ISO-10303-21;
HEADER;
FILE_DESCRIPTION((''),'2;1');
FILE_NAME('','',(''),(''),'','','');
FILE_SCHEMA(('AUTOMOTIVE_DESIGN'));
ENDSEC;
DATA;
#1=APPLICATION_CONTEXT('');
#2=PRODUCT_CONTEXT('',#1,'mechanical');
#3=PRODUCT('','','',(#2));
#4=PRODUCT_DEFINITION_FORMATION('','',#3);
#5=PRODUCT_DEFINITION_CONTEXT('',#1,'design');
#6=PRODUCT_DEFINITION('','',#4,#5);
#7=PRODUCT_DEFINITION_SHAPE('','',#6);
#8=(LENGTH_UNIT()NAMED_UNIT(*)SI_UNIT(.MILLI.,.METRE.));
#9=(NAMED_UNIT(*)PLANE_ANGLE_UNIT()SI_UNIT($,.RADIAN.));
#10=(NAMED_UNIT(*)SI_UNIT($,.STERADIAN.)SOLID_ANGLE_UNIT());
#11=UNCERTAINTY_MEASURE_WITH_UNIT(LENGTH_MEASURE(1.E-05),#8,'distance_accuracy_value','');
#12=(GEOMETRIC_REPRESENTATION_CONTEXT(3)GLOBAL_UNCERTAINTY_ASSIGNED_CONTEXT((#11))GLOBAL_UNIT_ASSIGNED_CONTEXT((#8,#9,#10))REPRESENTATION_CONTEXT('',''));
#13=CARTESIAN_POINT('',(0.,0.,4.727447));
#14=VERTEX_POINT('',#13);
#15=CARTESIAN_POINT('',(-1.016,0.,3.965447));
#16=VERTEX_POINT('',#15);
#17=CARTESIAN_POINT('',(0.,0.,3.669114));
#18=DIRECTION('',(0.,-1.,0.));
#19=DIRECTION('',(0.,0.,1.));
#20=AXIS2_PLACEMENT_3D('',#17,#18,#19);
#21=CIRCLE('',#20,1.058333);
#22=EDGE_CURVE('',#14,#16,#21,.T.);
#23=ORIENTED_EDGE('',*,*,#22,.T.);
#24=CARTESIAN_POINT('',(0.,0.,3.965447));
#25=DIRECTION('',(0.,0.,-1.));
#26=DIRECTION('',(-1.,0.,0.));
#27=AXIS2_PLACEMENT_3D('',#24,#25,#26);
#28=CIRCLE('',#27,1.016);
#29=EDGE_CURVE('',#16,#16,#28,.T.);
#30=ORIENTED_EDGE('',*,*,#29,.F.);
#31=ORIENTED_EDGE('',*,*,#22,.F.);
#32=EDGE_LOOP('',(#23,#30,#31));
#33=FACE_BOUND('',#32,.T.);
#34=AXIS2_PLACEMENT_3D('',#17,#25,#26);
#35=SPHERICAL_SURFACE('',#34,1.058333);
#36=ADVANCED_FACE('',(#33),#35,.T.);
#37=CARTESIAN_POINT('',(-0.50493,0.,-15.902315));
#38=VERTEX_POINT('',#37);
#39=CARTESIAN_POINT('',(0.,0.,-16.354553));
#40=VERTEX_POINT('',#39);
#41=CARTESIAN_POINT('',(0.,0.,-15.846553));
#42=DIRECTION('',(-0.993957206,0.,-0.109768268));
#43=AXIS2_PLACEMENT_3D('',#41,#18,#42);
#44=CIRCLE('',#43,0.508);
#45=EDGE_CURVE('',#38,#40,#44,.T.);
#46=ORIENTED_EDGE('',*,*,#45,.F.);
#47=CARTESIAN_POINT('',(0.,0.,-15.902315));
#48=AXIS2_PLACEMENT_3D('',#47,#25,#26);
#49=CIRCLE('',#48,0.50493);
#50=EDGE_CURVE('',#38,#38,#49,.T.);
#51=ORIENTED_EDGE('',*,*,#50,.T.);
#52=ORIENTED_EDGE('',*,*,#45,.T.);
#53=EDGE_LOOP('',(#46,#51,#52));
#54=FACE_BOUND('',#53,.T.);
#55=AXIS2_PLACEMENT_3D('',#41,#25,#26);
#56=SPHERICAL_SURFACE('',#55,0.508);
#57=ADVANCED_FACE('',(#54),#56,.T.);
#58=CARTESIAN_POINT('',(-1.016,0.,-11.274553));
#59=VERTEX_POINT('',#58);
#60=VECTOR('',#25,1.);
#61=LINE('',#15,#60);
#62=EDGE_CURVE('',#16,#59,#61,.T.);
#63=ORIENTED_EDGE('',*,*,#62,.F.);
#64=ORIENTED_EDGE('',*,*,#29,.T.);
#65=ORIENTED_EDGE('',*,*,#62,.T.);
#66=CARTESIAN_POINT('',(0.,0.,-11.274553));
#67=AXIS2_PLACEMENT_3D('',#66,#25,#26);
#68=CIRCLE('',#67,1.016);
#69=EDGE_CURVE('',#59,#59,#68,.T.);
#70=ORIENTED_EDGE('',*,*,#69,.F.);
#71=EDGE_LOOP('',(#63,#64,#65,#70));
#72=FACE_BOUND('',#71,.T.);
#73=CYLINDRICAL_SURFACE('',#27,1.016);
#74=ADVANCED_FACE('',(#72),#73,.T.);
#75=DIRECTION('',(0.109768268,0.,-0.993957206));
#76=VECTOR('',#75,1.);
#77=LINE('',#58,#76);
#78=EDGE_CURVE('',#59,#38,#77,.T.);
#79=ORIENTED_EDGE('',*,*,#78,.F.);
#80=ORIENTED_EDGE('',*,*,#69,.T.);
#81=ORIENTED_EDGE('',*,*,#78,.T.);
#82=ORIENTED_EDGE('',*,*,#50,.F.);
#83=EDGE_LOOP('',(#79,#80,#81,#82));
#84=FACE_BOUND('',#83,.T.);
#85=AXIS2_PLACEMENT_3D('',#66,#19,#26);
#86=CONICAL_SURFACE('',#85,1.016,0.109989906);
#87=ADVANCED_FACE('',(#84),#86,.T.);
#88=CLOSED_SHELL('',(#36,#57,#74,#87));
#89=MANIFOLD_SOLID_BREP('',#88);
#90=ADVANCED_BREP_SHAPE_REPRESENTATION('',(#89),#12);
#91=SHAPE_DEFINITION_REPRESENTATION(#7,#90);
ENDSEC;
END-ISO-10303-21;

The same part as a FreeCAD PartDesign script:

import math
import FreeCAD as App
import Part
import Sketcher

V = App.Vector
Q = App.Units.Quantity

doc = App.newDocument("Part")
body = doc.addObject("PartDesign::Body", "Body")

# Sketch on XZ plane
sketch1 = body.newObject("Sketcher::SketchObject", "Sketch")
sketch1.AttachmentSupport = (doc.getObject("XZ_Plane"), [""])
sketch1.MapMode = "FlatFace"
sketch1.addGeometry([
    Part.LineSegment(V(-1.016, 3.965447, 0), V(-1.016, -11.274553, 0)),  # 0
    Part.LineSegment(V(-1.016, -11.274553, 0), V(-0.50493, -15.902315, 0)),  # 1
    Part.ArcOfCircle(Part.Circle(V(0, -15.846553, 0), V(0, 0, 1), 0.508), math.radians(-173.698043), math.radians(-90)),  # 2
    Part.LineSegment(V(0, -16.354553, 0), V(0, 4.727447, 0)),  # 3
    Part.ArcOfCircle(Part.Circle(V(0, 3.669114, 0), V(0, 0, 1), 1.058333), math.radians(90), math.radians(163.739795)),  # 4
], False)
sketch1.addConstraint([
    Sketcher.Constraint("Coincident", 0, 2, 1, 1),
    Sketcher.Constraint("Tangent", 1, 2, 2, 1),
    Sketcher.Constraint("Coincident", 2, 2, 3, 1),
    Sketcher.Constraint("Coincident", 3, 2, 4, 1),
    Sketcher.Constraint("Coincident", 4, 2, 0, 1),
    Sketcher.Constraint("Vertical", 0),
    Sketcher.Constraint("Vertical", 3),
    Sketcher.Constraint("PointOnObject", 2, 3, -2),
    Sketcher.Constraint("PointOnObject", 4, 3, -2),
    Sketcher.Constraint("PointOnObject", 2, 2, -2),
    Sketcher.Constraint("Radius", 2, Q("0.02 in")),
    Sketcher.Constraint("DistanceY", 0, 2, 0, 1, Q("0.6 in")),
    Sketcher.Constraint("DistanceY", 3, 1, 3, 2, Q("0.83 in")),
    Sketcher.Constraint("DistanceY", 2, 2, 0, 2, Q("0.2 in")),
    Sketcher.Constraint("DistanceX", 0, 2, -1, 1, Q("0.04 in")),
    Sketcher.Constraint("DistanceY", 2, 3, -1, 1, Q("15.846553 mm")),
])
revolution = body.newObject("PartDesign::Revolution", "Revolution")
revolution.Profile = sketch1
revolution.ReferenceAxis = (sketch1, ["V_Axis"])
revolution.Angle = 360

doc.recompute()
